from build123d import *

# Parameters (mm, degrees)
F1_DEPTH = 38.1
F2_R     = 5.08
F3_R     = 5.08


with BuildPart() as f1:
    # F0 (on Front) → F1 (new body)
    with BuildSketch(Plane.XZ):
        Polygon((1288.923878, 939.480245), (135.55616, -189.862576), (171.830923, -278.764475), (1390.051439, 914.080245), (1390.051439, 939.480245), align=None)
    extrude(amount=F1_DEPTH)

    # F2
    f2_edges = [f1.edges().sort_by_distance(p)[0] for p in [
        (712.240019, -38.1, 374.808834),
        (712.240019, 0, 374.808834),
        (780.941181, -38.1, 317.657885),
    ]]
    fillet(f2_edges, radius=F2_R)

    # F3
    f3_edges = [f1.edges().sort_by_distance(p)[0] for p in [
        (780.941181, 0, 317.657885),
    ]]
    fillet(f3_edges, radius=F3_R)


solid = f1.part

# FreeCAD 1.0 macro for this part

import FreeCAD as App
import Part
import Sketcher
from FreeCAD import Vector
Q = App.Units.Quantity


def edges_at(feature, points):
    """Names of the edges that pass closest to the given points."""
    edges = feature.Shape.Edges
    near = lambda p: min(range(len(edges)), key=lambda i: edges[i].distToShape(Part.Vertex(*p))[0])
    return sorted({f"Edge{near(p) + 1}" for p in points})

doc = App.newDocument("Part")
body = doc.addObject("PartDesign::Body", "Body")

sketch1 = doc.addObject("Sketcher::SketchObject", "Sketch")
body.addObject(sketch1)
sketch1.AttachmentSupport = (doc.XZ_Plane, [""])
sketch1.MapMode = "FlatFace"
sketch1.addGeometry(Part.LineSegment(Vector(1288.923878, 939.480245, 0), Vector(135.55616, -189.862576, 0)), False)
sketch1.addGeometry(Part.LineSegment(Vector(135.55616, -189.862576, 0), Vector(171.830923, -278.764475, 0)), False)
sketch1.addGeometry(Part.LineSegment(Vector(171.830923, -278.764475, 0), Vector(1390.051439, 914.080245, 0)), False)
sketch1.addGeometry(Part.LineSegment(Vector(1390.051439, 914.080245, 0), Vector(1390.051439, 939.480245, 0)), False)
sketch1.addGeometry(Part.LineSegment(Vector(1390.051439, 939.480245, 0), Vector(1288.923878, 939.480245, 0)), False)
sketch1.addConstraint(Sketcher.Constraint("Coincident", 0, 2, 1, 1))
sketch1.addConstraint(Sketcher.Constraint("Coincident", 1, 2, 2, 1))
sketch1.addConstraint(Sketcher.Constraint("Coincident", 2, 2, 3, 1))
sketch1.addConstraint(Sketcher.Constraint("Coincident", 3, 2, 4, 1))
sketch1.addConstraint(Sketcher.Constraint("Coincident", 4, 2, 0, 1))
sketch1.addConstraint(Sketcher.Constraint("Vertical", 3))
sketch1.addConstraint(Sketcher.Constraint("Horizontal", 4))
sketch1.addConstraint(Sketcher.Constraint("Parallel", 0, 2))
sketch1.addConstraint(Sketcher.Constraint("DistanceY", 3, 1, 3, 2, Q("1 in")))
sketch1.addConstraint(Sketcher.Constraint("Distance", 2, Q("67.125 in")))
sketch1.addConstraint(Sketcher.Constraint("DistanceX", 4, 2, 4, 1, Q("3.9814 in")))
sketch1.addConstraint(Sketcher.Constraint("DistanceY", 1, 2, 0, 2, Q("88.901899 mm")))
sketch1.addConstraint(Sketcher.Constraint("Distance", 1, Q("96.017738 mm")))
sketch1.addConstraint(Sketcher.Constraint("DistanceX", -1, 1, 0, 2, Q("135.55616 mm")))
sketch1.addConstraint(Sketcher.Constraint("DistanceY", 0, 2, -1, 1, Q("189.862576 mm")))
pad1 = doc.addObject("PartDesign::Pad", "Pad")
body.addObject(pad1)
pad1.Profile = sketch1
pad1.Length = Q("1.5 in")
doc.recompute()

fillet = doc.addObject("PartDesign::Fillet", "Fillet")
body.addObject(fillet)
fillet.Base = (pad1, edges_at(pad1, [(712.24, -38.1, 374.809), (712.24, 0, 374.809), (780.941, -38.1, 317.658)]))
fillet.Radius = Q("0.2 in")
doc.recompute()

fillet2 = doc.addObject("PartDesign::Fillet", "Fillet001")
body.addObject(fillet2)
fillet2.Base = (fillet, edges_at(fillet, [(780.941, 0, 317.658)]))
fillet2.Radius = Q("0.2 in")

doc.recompute()
